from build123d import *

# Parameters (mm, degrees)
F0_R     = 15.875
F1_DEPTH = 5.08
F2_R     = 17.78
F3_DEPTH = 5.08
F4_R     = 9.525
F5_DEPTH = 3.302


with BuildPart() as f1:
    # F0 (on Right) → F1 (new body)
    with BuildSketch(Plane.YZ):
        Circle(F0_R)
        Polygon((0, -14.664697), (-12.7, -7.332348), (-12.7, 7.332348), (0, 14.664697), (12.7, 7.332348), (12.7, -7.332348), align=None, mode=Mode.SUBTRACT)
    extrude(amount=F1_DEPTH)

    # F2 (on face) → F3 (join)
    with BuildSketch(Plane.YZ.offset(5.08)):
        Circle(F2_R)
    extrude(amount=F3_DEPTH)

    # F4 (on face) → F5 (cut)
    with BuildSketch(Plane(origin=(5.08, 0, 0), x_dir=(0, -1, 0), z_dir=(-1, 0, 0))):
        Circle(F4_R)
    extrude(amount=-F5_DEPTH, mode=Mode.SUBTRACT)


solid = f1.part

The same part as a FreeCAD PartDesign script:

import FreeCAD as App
import Part
import Sketcher
Q = App.Units.Quantity

doc = App.newDocument("Part")
body = doc.addObject("PartDesign::Body", "Body")

sketch1 = body.newObject("Sketcher::SketchObject", "Sketch")
sketch1.AttachmentSupport = (doc.getObject("YZ_Plane"), [""])
sketch1.MapMode = "FlatFace"
sketch1.addGeometry([
    Part.Circle(App.Vector(0, 0, 0), App.Vector(0, 0, 1), 15.875),
    Part.LineSegment(App.Vector(12.7, -7.332348, 0), App.Vector(0, -14.664697, 0)),
    Part.LineSegment(App.Vector(0, -14.664697, 0), App.Vector(-12.7, -7.332348, 0)),
    Part.LineSegment(App.Vector(-12.7, -7.332348, 0), App.Vector(-12.7, 7.332348, 0)),
    Part.LineSegment(App.Vector(-12.7, 7.332348, 0), App.Vector(0, 14.664697, 0)),
    Part.LineSegment(App.Vector(0, 14.664697, 0), App.Vector(12.7, 7.332348, 0)),
    Part.LineSegment(App.Vector(12.7, 7.332348, 0), App.Vector(12.7, -7.332348, 0)),
], False)
sketch1.addConstraint([
    Sketcher.Constraint("Coincident", 1, 2, 2, 1),
    Sketcher.Constraint("Coincident", 2, 2, 3, 1),
    Sketcher.Constraint("Coincident", 3, 2, 4, 1),
    Sketcher.Constraint("Coincident", 4, 2, 5, 1),
    Sketcher.Constraint("Coincident", 5, 2, 6, 1),
    Sketcher.Constraint("Coincident", 6, 2, 1, 1),
    Sketcher.Constraint("Vertical", 3),
    Sketcher.Constraint("Vertical", 6),
    Sketcher.Constraint("Coincident", 0, 3, -1, 1),
    Sketcher.Constraint("Symmetric", 1, 2, 4, 2, -1, 1),
    Sketcher.Constraint("Symmetric", 2, 2, 5, 2, -1, 1),
    Sketcher.Constraint("PointOnObject", 1, 2, -2),
    Sketcher.Constraint("Parallel", 1, 4),
    Sketcher.Constraint("Horizontal", 3, 2, 5, 2),
    Sketcher.Constraint("Diameter", 0, Q("1.25 in")),
    Sketcher.Constraint("Angle", 1, Q("-149.999998 deg")),
    Sketcher.Constraint("DistanceX", 3, 2, 5, 2, Q("1 in")),
    Sketcher.Constraint("DistanceY", 3, 1, 3, 2, Q("14.664696 mm")),
])
pad1 = body.newObject("PartDesign::Pad", "Pad")
pad1.Profile = sketch1
pad1.Length = Q("0.2 in")

sketch2 = body.newObject("Sketcher::SketchObject", "Sketch001")
sketch2.AttachmentSupport = (doc.getObject("YZ_Plane"), [""])
sketch2.MapMode = "FlatFace"
sketch2.AttachmentOffset = App.Placement(App.Vector(0, 0, 0.2 * 25.4), App.Rotation())
sketch2.addGeometry(Part.Circle(App.Vector(0, 0, 0), App.Vector(0, 0, 1), 17.78), False)
sketch2.addConstraint([
    Sketcher.Constraint("Coincident", 0, 3, -1, 1),
    Sketcher.Constraint("Diameter", 0, Q("1.4 in")),
])
pad2 = body.newObject("PartDesign::Pad", "Pad001")
pad2.Profile = sketch2
pad2.Length = Q("0.2 in")

sketch3 = body.newObject("Sketcher::SketchObject", "Sketch002")
sketch3.AttachmentSupport = (doc.getObject("YZ_Plane"), [""])
sketch3.MapMode = "FlatFace"
sketch3.AttachmentOffset = App.Placement(App.Vector(0, 0, 0.2 * 25.4), App.Rotation())
sketch3.addGeometry(Part.Circle(App.Vector(0, 0, 0), App.Vector(0, 0, 1), 9.525), False)
sketch3.addConstraint([
    Sketcher.Constraint("Coincident", 0, 3, -1, 1),
    Sketcher.Constraint("Diameter", 0, Q("0.75 in")),
])
pocket1 = body.newObject("PartDesign::Pocket", "Pocket")
pocket1.Profile = sketch3
pocket1.Length = Q("0.13 in")
pocket1.Reversed = True

doc.recompute()
